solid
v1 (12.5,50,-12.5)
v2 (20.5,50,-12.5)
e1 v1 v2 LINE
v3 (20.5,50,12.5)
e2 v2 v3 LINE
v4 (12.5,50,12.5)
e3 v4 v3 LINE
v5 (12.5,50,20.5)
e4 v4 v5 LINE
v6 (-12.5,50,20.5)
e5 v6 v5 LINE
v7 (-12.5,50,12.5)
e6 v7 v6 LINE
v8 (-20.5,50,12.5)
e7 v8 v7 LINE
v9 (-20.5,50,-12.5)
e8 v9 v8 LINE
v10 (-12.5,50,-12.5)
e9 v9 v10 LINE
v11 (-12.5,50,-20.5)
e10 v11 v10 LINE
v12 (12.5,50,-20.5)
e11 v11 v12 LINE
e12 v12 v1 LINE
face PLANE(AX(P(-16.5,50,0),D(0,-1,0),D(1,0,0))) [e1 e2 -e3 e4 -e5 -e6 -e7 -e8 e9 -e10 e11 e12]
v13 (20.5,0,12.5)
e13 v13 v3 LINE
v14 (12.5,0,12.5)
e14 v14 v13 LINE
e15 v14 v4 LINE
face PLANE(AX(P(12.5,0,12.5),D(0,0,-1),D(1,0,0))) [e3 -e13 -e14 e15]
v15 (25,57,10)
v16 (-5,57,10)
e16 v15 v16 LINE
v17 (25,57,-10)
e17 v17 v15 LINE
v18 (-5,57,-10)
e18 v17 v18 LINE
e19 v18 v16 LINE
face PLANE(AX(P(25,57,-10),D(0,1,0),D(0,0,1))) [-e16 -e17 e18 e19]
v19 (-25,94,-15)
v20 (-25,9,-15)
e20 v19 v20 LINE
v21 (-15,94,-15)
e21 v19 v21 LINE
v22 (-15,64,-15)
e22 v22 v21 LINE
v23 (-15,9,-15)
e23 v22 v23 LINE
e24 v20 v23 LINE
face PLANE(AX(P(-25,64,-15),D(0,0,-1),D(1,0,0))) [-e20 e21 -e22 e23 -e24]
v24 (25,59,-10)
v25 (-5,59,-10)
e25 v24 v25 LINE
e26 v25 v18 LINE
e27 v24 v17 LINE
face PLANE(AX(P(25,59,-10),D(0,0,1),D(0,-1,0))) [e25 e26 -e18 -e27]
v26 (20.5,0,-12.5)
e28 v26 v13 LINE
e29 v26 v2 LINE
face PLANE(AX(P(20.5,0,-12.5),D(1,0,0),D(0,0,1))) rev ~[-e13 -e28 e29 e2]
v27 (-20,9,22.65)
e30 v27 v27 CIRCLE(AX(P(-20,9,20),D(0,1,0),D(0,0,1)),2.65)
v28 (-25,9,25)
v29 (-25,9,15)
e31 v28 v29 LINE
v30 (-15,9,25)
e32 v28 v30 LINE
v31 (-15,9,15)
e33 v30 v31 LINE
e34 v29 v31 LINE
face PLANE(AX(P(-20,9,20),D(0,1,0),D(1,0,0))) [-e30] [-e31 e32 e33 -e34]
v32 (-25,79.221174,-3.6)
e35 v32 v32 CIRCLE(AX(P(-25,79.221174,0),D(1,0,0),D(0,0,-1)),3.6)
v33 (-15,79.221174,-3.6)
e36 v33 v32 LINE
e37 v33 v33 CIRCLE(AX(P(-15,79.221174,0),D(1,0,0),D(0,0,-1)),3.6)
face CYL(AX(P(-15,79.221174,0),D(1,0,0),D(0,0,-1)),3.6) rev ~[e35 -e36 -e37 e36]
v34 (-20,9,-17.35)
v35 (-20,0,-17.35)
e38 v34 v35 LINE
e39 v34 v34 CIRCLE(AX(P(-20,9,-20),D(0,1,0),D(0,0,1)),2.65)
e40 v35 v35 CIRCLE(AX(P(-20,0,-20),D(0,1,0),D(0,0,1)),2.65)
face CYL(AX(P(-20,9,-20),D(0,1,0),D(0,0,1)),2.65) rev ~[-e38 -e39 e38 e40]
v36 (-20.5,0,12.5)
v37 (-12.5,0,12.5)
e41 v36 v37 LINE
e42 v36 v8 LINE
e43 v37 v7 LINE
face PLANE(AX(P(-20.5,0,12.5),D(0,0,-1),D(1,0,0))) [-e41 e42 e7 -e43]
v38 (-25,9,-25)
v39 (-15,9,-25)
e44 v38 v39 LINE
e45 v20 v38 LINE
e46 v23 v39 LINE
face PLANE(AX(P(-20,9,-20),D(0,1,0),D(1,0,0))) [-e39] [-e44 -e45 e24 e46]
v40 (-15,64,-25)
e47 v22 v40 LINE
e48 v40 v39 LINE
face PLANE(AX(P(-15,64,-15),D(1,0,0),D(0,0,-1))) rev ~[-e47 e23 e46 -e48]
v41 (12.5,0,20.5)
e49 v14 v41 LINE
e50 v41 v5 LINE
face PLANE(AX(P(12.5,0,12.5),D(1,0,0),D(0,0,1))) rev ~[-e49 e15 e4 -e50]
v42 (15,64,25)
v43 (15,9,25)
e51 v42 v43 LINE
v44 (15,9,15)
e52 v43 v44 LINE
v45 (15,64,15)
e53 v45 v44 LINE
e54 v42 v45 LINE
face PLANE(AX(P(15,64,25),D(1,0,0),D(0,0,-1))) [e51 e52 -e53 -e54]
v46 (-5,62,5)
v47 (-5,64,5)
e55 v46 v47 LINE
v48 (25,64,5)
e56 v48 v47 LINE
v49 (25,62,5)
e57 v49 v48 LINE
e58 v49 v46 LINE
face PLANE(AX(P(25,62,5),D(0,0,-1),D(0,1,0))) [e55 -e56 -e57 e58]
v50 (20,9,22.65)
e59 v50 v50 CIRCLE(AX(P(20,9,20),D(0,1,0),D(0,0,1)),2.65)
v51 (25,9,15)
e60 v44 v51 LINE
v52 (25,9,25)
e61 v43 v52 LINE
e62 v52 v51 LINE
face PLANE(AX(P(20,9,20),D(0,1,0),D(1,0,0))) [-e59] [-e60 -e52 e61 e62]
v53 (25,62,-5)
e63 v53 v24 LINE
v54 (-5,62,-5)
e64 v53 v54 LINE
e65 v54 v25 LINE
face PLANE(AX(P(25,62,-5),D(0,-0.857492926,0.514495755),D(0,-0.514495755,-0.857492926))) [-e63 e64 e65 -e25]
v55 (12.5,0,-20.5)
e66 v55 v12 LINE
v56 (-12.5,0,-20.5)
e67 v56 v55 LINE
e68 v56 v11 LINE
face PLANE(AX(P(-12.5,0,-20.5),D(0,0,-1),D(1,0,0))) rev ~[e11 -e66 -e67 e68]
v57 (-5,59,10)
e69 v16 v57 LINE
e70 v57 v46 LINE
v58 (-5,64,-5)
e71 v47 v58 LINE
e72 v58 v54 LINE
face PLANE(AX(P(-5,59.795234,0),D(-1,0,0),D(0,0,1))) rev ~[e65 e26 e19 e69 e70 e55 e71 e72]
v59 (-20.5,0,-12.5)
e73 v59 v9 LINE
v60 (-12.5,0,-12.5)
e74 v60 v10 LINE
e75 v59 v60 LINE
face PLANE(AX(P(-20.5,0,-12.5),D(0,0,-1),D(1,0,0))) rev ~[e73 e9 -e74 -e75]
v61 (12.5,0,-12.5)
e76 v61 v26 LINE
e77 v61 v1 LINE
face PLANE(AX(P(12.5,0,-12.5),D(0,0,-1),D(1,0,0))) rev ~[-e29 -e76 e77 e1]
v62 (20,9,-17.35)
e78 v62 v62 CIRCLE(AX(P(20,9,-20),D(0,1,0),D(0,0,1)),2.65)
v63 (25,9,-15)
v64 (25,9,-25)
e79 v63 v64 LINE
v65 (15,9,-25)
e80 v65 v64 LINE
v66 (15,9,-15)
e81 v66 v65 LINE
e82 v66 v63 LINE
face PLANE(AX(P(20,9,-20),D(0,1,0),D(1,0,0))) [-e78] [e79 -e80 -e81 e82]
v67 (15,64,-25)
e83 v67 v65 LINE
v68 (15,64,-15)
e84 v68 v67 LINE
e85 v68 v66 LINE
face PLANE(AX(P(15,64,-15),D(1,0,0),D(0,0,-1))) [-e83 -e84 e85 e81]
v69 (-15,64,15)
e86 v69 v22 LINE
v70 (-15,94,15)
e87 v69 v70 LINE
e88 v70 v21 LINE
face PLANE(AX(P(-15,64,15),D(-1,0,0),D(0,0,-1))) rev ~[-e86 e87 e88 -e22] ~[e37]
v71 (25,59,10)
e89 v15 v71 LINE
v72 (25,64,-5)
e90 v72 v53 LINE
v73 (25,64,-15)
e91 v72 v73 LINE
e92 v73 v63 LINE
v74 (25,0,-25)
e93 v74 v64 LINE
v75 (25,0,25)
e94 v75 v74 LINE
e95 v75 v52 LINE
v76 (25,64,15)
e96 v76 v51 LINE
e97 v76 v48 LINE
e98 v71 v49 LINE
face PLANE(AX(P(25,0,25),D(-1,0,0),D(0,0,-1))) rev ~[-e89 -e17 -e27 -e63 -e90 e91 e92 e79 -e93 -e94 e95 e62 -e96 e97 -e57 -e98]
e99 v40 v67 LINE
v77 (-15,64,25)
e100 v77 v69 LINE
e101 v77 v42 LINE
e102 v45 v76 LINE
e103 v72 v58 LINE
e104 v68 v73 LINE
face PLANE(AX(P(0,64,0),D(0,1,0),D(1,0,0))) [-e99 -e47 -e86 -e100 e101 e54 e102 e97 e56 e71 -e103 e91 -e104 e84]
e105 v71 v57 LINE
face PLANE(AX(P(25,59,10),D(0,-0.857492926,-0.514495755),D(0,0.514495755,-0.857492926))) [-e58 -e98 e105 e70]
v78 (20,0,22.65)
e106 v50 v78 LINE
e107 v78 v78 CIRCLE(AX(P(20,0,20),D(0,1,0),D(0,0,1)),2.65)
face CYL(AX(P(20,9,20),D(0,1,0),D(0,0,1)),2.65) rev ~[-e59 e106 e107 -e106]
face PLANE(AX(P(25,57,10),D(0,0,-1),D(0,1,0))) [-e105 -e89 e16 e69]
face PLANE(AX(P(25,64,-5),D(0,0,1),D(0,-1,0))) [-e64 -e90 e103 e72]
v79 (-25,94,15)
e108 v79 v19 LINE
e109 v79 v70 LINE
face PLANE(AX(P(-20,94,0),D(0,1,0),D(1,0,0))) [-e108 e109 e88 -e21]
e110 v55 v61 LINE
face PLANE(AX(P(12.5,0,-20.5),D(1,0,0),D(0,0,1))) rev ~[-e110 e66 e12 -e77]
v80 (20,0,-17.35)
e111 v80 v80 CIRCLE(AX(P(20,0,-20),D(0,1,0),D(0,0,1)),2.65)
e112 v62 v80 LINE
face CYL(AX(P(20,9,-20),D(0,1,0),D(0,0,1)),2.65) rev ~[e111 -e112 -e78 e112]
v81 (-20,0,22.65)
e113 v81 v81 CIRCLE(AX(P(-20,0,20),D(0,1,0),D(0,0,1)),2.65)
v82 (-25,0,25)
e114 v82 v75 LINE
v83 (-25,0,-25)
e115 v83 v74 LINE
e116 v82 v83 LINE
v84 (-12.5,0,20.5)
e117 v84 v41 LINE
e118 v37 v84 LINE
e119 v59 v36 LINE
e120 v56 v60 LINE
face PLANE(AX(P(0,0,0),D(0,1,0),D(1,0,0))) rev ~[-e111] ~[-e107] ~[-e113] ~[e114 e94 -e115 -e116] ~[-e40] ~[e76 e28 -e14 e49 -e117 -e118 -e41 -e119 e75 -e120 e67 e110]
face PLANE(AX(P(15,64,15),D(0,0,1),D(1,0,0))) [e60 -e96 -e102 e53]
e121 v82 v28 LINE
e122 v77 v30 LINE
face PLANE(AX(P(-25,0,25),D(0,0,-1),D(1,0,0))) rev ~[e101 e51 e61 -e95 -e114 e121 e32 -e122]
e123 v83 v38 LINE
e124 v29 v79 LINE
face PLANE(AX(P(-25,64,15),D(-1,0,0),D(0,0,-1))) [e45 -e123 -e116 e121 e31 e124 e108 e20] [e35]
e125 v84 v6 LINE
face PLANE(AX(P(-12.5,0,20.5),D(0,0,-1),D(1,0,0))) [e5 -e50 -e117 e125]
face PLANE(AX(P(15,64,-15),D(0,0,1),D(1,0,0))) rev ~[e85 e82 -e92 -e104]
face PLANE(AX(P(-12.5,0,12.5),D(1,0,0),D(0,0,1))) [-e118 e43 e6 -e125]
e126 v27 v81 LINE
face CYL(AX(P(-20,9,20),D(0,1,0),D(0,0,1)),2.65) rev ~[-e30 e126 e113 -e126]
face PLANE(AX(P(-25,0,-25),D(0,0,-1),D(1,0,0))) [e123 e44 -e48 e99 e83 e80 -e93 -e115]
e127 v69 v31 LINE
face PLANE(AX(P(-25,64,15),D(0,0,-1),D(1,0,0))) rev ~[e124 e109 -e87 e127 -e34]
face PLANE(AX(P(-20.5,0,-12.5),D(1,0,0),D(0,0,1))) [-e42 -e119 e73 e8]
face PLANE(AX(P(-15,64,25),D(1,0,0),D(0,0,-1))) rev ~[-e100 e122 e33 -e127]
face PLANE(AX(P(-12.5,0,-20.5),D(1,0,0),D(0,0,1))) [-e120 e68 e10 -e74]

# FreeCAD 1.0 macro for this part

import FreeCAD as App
import Part
import Sketcher
from FreeCAD import Vector
Q = App.Units.Quantity

doc = App.newDocument("Part")
body = doc.addObject("PartDesign::Body", "Body")

# Sketch on XZ plane
sketch1 = body.newObject("Sketcher::SketchObject", "Sketch")
sketch1.AttachmentSupport = (doc.getObject("XZ_Plane"), [""])
sketch1.MapMode = "FlatFace"
sketch1.addGeometry([
    Part.LineSegment(Vector(-25, -25, 0), Vector(-25, 25, 0)),
    Part.LineSegment(Vector(-25, 25, 0), Vector(25, 25, 0)),
    Part.LineSegment(Vector(25, 25, 0), Vector(25, -25, 0)),
    Part.LineSegment(Vector(25, -25, 0), Vector(-25, -25, 0)),
], False)
sketch1.addConstraint([
    Sketcher.Constraint("Coincident", 0, 2, 1, 1),
    Sketcher.Constraint("Coincident", 1, 2, 2, 1),
    Sketcher.Constraint("Coincident", 2, 2, 3, 1),
    Sketcher.Constraint("Coincident", 3, 2, 0, 1),
    Sketcher.Constraint("Vertical", 0),
    Sketcher.Constraint("Horizontal", 1),
    Sketcher.Constraint("Vertical", 2),
    Sketcher.Constraint("Horizontal", 3),
    Sketcher.Constraint("Symmetric", 0, 2, 2, 2, -1, 1),
    Sketcher.Constraint("Equal", 3, 0),
    Sketcher.Constraint("DistanceX", 1, 1, 1, 2, Q("50 mm")),
])
pad1 = body.newObject("PartDesign::Pad", "Pad")
pad1.Profile = sketch1
pad1.Length = 64
pad1.Reversed = True

# Sketch on XZ plane
sketch2 = body.newObject("Sketcher::SketchObject", "Sketch001")
sketch2.AttachmentSupport = (doc.getObject("XZ_Plane"), [""])
sketch2.MapMode = "FlatFace"
sketch2.AttachmentOffset = App.Placement(Vector(0, 0, -64), App.Rotation())
sketch2.addGeometry([
    Part.LineSegment(Vector(15, -25, 0), Vector(15, -15, 0)),  # 0
    Part.LineSegment(Vector(15, -15, 0), Vector(25, -15, 0)),  # 1
    Part.LineSegment(Vector(25, -15, 0), Vector(25, -25, 0)),  # 2
    Part.LineSegment(Vector(25, -25, 0), Vector(15, -25, 0)),  # 3
    Part.LineSegment(Vector(-25, -25, 0), Vector(-25, -15, 0)),  # 4
    Part.LineSegment(Vector(-25, -15, 0), Vector(-15, -15, 0)),  # 5
    Part.LineSegment(Vector(-15, -15, 0), Vector(-15, -25, 0)),  # 6
    Part.LineSegment(Vector(-15, -25, 0), Vector(-25, -25, 0)),  # 7
    Part.LineSegment(Vector(15, 15, 0), Vector(15, 25, 0)),  # 8
    Part.LineSegment(Vector(15, 25, 0), Vector(25, 25, 0)),  # 9
    Part.LineSegment(Vector(25, 25, 0), Vector(25, 15, 0)),  # 10
    Part.LineSegment(Vector(25, 15, 0), Vector(15, 15, 0)),  # 11
    Part.LineSegment(Vector(-25, 15, 0), Vector(-25, 25, 0)),  # 12
    Part.LineSegment(Vector(-25, 25, 0), Vector(-15, 25, 0)),  # 13
    Part.LineSegment(Vector(-15, 25, 0), Vector(-15, 15, 0)),  # 14
    Part.LineSegment(Vector(-15, 15, 0), Vector(-25, 15, 0)),  # 15
], False)
sketch2.addConstraint([
    Sketcher.Constraint("Coincident", 0, 2, 1, 1),
    Sketcher.Constraint("Coincident", 1, 2, 2, 1),
    Sketcher.Constraint("Coincident", 2, 2, 3, 1),
    Sketcher.Constraint("Coincident", 3, 2, 0, 1),
    Sketcher.Constraint("Coincident", 4, 2, 5, 1),
    Sketcher.Constraint("Coincident", 5, 2, 6, 1),
    Sketcher.Constraint("Coincident", 6, 2, 7, 1),
    Sketcher.Constraint("Coincident", 7, 2, 4, 1),
    Sketcher.Constraint("Coincident", 8, 2, 9, 1),
    Sketcher.Constraint("Coincident", 9, 2, 10, 1),
    Sketcher.Constraint("Coincident", 10, 2, 11, 1),
    Sketcher.Constraint("Coincident", 11, 2, 8, 1),
    Sketcher.Constraint("Coincident", 12, 2, 13, 1),
    Sketcher.Constraint("Coincident", 13, 2, 14, 1),
    Sketcher.Constraint("Coincident", 14, 2, 15, 1),
    Sketcher.Constraint("Coincident", 15, 2, 12, 1),
    Sketcher.Constraint("Vertical", 0),
    Sketcher.Constraint("Horizontal", 1),
    Sketcher.Constraint("Vertical", 2),
    Sketcher.Constraint("Horizontal", 3),
    Sketcher.Constraint("Vertical", 4),
    Sketcher.Constraint("Horizontal", 5),
    Sketcher.Constraint("Vertical", 6),
    Sketcher.Constraint("Horizontal", 7),
    Sketcher.Constraint("Vertical", 8),
    Sketcher.Constraint("Horizontal", 9),
    Sketcher.Constraint("Vertical", 10),
    Sketcher.Constraint("Horizontal", 11),
    Sketcher.Constraint("Vertical", 12),
    Sketcher.Constraint("Horizontal", 13),
    Sketcher.Constraint("Vertical", 14),
    Sketcher.Constraint("Horizontal", 15),
    Sketcher.Constraint("Symmetric", 6, 2, 8, 2, -1, 1),
    Sketcher.Constraint("Symmetric", 4, 2, 10, 2, -1, 1),
    Sketcher.Constraint("Symmetric", 2, 2, 12, 2, -1, 1),
    Sketcher.Constraint("Symmetric", 0, 2, 14, 2, -1, 1),
    Sketcher.Constraint("Symmetric", 1, 2, 4, 2, -2),
    Sketcher.Constraint("Symmetric", 3, 2, 6, 2, -2),
    Sketcher.Constraint("Equal", 15, 0),
    Sketcher.Constraint("DistanceX", 1, 1, 1, 2, Q("10 mm")),
    Sketcher.Constraint("DistanceX", -1, 1, 0, 2, Q("15 mm")),
    Sketcher.Constraint("DistanceY", 0, 2, -1, 1, Q("15 mm")),
])
pocket1 = body.newObject("PartDesign::Pocket", "Pocket")
pocket1.Profile = sketch2
pocket1.Length = 55
pocket1.Reversed = True

# Sketch on YZ plane
sketch3 = body.newObject("Sketcher::SketchObject", "Sketch002")
sketch3.AttachmentSupport = (doc.getObject("YZ_Plane"), [""])
sketch3.MapMode = "FlatFace"
sketch3.AttachmentOffset = App.Placement(Vector(0, 0, 25), App.Rotation())
sketch3.addGeometry([
    Part.LineSegment(Vector(64, -5, 0), Vector(64, 5, 0)),  # 0
    Part.LineSegment(Vector(64, 5, 0), Vector(62, 5, 0)),  # 1
    Part.LineSegment(Vector(62, 5, 0), Vector(59, 10, 0)),  # 2
    Part.LineSegment(Vector(59, 10, 0), Vector(57, 10, 0)),  # 3
    Part.LineSegment(Vector(57, 10, 0), Vector(57, -10, 0)),  # 4
    Part.LineSegment(Vector(57, -10, 0), Vector(59, -10, 0)),  # 5
    Part.LineSegment(Vector(59, -10, 0), Vector(62, -5, 0)),  # 6
    Part.LineSegment(Vector(62, -5, 0), Vector(64, -5, 0)),  # 7
], False)
sketch3.addConstraint([
    Sketcher.Constraint("Coincident", 0, 2, 1, 1),
    Sketcher.Constraint("Coincident", 1, 2, 2, 1),
    Sketcher.Constraint("Coincident", 2, 2, 3, 1),
    Sketcher.Constraint("Coincident", 3, 2, 4, 1),
    Sketcher.Constraint("Coincident", 4, 2, 5, 1),
    Sketcher.Constraint("Coincident", 5, 2, 6, 1),
    Sketcher.Constraint("Coincident", 6, 2, 7, 1),
    Sketcher.Constraint("Coincident", 7, 2, 0, 1),
    Sketcher.Constraint("Vertical", 0),
    Sketcher.Constraint("Horizontal", 1),
    Sketcher.Constraint("Horizontal", 3),
    Sketcher.Constraint("Vertical", 4),
    Sketcher.Constraint("Horizontal", 5),
    Sketcher.Constraint("Horizontal", 7),
    Sketcher.Constraint("Symmetric", 2, 2, 5, 2, -1),
    Sketcher.Constraint("Symmetric", 1, 2, 6, 2, -1),
    Sketcher.Constraint("Equal", 1, 3),
    Sketcher.Constraint("DistanceX", 1, 2, 1, 1, Q("2 mm")),
    Sketcher.Constraint("DistanceY", 0, 1, 0, 2, Q("10 mm")),
    Sketcher.Constraint("DistanceY", 4, 2, 4, 1, Q("20 mm")),
    Sketcher.Constraint("DistanceX", -1, 1, 0, 2, Q("64 mm")),
    Sketcher.Constraint("DistanceX", -1, 1, 2, 2, Q("59 mm")),
])
pocket2 = body.newObject("PartDesign::Pocket", "Pocket001")
pocket2.Profile = sketch3
pocket2.Length = 30

# Sketch on XZ plane
sketch4 = body.newObject("Sketcher::SketchObject", "Sketch003")
sketch4.AttachmentSupport = (doc.getObject("XZ_Plane"), [""])
sketch4.MapMode = "FlatFace"
sketch4.AttachmentOffset = App.Placement(Vector(0, 0, -64), App.Rotation())
sketch4.addGeometry([
    Part.LineSegment(Vector(-25, -15, 0), Vector(-25, 15, 0)),
    Part.LineSegment(Vector(-25, 15, 0), Vector(-15, 15, 0)),
    Part.LineSegment(Vector(-15, 15, 0), Vector(-15, -15, 0)),
    Part.LineSegment(Vector(-15, -15, 0), Vector(-25, -15, 0)),
], False)
sketch4.addConstraint([
    Sketcher.Constraint("Coincident", 0, 2, 1, 1),
    Sketcher.Constraint("Coincident", 1, 2, 2, 1),
    Sketcher.Constraint("Coincident", 2, 2, 3, 1),
    Sketcher.Constraint("Coincident", 3, 2, 0, 1),
    Sketcher.Constraint("Vertical", 0),
    Sketcher.Constraint("Horizontal", 1),
    Sketcher.Constraint("Vertical", 2),
    Sketcher.Constraint("Horizontal", 3),
    Sketcher.Constraint("DistanceX", 1, 1, 1, 2, Q("10 mm")),
    Sketcher.Constraint("DistanceY", 0, 1, 0, 2, Q("30 mm")),
    Sketcher.Constraint("DistanceX", 0, 2, -1, 1, Q("25 mm")),
    Sketcher.Constraint("DistanceY", -1, 1, 0, 2, Q("15 mm")),
])
pad2 = body.newObject("PartDesign::Pad", "Pad001")
pad2.Profile = sketch4
pad2.Length = 30
pad2.Reversed = True

# Sketch on XZ plane
sketch5 = body.newObject("Sketcher::SketchObject", "Sketch004")
sketch5.AttachmentSupport = (doc.getObject("XZ_Plane"), [""])
sketch5.MapMode = "FlatFace"
sketch5.addGeometry([
    Part.LineSegment(Vector(-20, 12, 0), Vector(-20, -12, 0)),  # 0
    Part.LineSegment(Vector(-20, -12, 0), Vector(-12, -12, 0)),  # 1
    Part.LineSegment(Vector(-12, -12, 0), Vector(-12, -20, 0)),  # 2
    Part.LineSegment(Vector(-12, -20, 0), Vector(12, -20, 0)),  # 3
    Part.LineSegment(Vector(12, -20, 0), Vector(12, -12, 0)),  # 4
    Part.LineSegment(Vector(12, -12, 0), Vector(20, -12, 0)),  # 5
    Part.LineSegment(Vector(20, -12, 0), Vector(20, 12, 0)),  # 6
    Part.LineSegment(Vector(20, 12, 0), Vector(12, 12, 0)),  # 7
    Part.LineSegment(Vector(12, 12, 0), Vector(12, 20, 0)),  # 8
    Part.LineSegment(Vector(12, 20, 0), Vector(-12, 20, 0)),  # 9
    Part.LineSegment(Vector(-12, 20, 0), Vector(-12, 12, 0)),  # 10
    Part.LineSegment(Vector(-12, 12, 0), Vector(-20, 12, 0)),  # 11
], False)
sketch5.addConstraint([
    Sketcher.Constraint("Coincident", 0, 2, 1, 1),
    Sketcher.Constraint("Coincident", 1, 2, 2, 1),
    Sketcher.Constraint("Coincident", 2, 2, 3, 1),
    Sketcher.Constraint("Coincident", 3, 2, 4, 1),
    Sketcher.Constraint("Coincident", 4, 2, 5, 1),
    Sketcher.Constraint("Coincident", 5, 2, 6, 1),
    Sketcher.Constraint("Coincident", 6, 2, 7, 1),
    Sketcher.Constraint("Coincident", 7, 2, 8, 1),
    Sketcher.Constraint("Coincident", 8, 2, 9, 1),
    Sketcher.Constraint("Coincident", 9, 2, 10, 1),
    Sketcher.Constraint("Coincident", 10, 2, 11, 1),
    Sketcher.Constraint("Coincident", 11, 2, 0, 1),
    Sketcher.Constraint("Vertical", 0),
    Sketcher.Constraint("Horizontal", 1),
    Sketcher.Constraint("Vertical", 2),
    Sketcher.Constraint("Horizontal", 3),
    Sketcher.Constraint("Vertical", 4),
    Sketcher.Constraint("Horizontal", 5),
    Sketcher.Constraint("Vertical", 6),
    Sketcher.Constraint("Horizontal", 7),
    Sketcher.Constraint("Vertical", 8),
    Sketcher.Constraint("Horizontal", 9),
    Sketcher.Constraint("Vertical", 10),
    Sketcher.Constraint("Horizontal", 11),
    Sketcher.Constraint("Symmetric", 0, 2, 6, 2, -1, 1),
    Sketcher.Constraint("Symmetric", 2, 2, 8, 2, -1, 1),
    Sketcher.Constraint("Symmetric", 4, 2, 10, 2, -1, 1),
    Sketcher.Constraint("Symmetric", 1, 2, 4, 2, -2),
    Sketcher.Constraint("Equal", 9, 0),
    Sketcher.Constraint("Equal", 11, 2),
    Sketcher.Constraint("DistanceX", 1, 1, 1, 2, Q("8 mm")),
    Sketcher.Constraint("DistanceX", 3, 1, 3, 2, Q("25 mm")),
])
pocket3 = body.newObject("PartDesign::Pocket", "Pocket002")
pocket3.Profile = sketch5
pocket3.Length = 50

# Sketch on YZ plane
sketch6 = body.newObject("Sketcher::SketchObject", "Sketch005")
sketch6.AttachmentSupport = (doc.getObject("YZ_Plane"), [""])
sketch6.MapMode = "FlatFace"
sketch6.AttachmentOffset = App.Placement(Vector(0, 0, -15), App.Rotation())
sketch6.addGeometry(Part.Circle(Vector(79.2, 0, 0), Vector(0, 0, 1), 3.6), False)
sketch6.addConstraint([
    Sketcher.Constraint("PointOnObject", 0, 3, -1),
    Sketcher.Constraint("Diameter", 0, Q("7.2 mm")),
    Sketcher.Constraint("DistanceX", -1, 1, 0, 3, Q("79.221174 mm")),
])
pocket4 = body.newObject("PartDesign::Pocket", "Pocket003")
pocket4.Profile = sketch6
pocket4.Length = 50

# Sketch on XZ plane
sketch7 = body.newObject("Sketcher::SketchObject", "Sketch006")
sketch7.AttachmentSupport = (doc.getObject("XZ_Plane"), [""])
sketch7.MapMode = "FlatFace"
sketch7.AttachmentOffset = App.Placement(Vector(0, 0, -9), App.Rotation())
sketch7.addGeometry([
    Part.Circle(Vector(20, 20, 0), Vector(0, 0, 1), 2.6),
    Part.Circle(Vector(-20, 20, 0), Vector(0, 0, 1), 2.6),
    Part.Circle(Vector(-20, -20, 0), Vector(0, 0, 1), 2.6),
    Part.Circle(Vector(20, -20, 0), Vector(0, 0, 1), 2.6),
], False)
sketch7.addConstraint([
    Sketcher.Constraint("Equal", 0, 1),
    Sketcher.Constraint("Equal", 1, 2),
    Sketcher.Constraint("Equal", 2, 3),
    Sketcher.Constraint("Symmetric", 0, 3, 2, 3, -1, 1),
    Sketcher.Constraint("Symmetric", 1, 3, 3, 3, -1, 1),
    Sketcher.Constraint("Symmetric", 0, 3, 1, 3, -2),
    Sketcher.Constraint("Diameter", 0, Q("5.3 mm")),
    Sketcher.Constraint("DistanceX", -1, 1, 0, 3, Q("20 mm")),
    Sketcher.Constraint("DistanceY", -1, 1, 0, 3, Q("20 mm")),
])
pocket5 = body.newObject("PartDesign::Pocket", "Pocket004")
pocket5.Profile = sketch7
pocket5.Length = 50
pocket5.Reversed = True

doc.recompute()
